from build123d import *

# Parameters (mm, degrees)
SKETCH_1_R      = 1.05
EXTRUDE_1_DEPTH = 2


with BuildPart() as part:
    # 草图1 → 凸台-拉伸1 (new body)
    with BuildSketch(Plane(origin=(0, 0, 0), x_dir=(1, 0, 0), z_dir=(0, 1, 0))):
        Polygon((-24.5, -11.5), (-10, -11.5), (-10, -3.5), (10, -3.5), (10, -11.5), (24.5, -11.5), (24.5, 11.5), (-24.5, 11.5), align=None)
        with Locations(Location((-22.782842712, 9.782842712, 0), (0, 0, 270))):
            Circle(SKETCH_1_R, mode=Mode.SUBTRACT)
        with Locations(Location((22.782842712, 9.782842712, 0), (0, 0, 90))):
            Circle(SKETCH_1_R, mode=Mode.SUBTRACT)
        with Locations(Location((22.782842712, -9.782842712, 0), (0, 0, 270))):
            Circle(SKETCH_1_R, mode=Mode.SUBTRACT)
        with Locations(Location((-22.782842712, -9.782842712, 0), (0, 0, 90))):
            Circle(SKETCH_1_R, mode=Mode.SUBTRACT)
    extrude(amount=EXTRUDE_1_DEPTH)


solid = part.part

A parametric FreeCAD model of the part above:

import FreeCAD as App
import Part
import Sketcher

V = App.Vector

doc = App.newDocument("Part")
body = doc.addObject("PartDesign::Body", "Body")

sketch1 = body.newObject("Sketcher::SketchObject", "Sketch")
sketch1.AttachmentSupport = (doc.getObject("XZ_Plane"), [""])
sketch1.MapMode = "FlatFace"
sketch1.addGeometry(Part.LineSegment(V(-24.5, 11.5, 0), V(-10, 11.5, 0)), False)
sketch1.addGeometry(Part.LineSegment(V(-10, 11.5, 0), V(-10, 3.5, 0)), False)
sketch1.addGeometry(Part.LineSegment(V(-10, 3.5, 0), V(10, 3.5, 0)), False)
sketch1.addGeometry(Part.LineSegment(V(10, 3.5, 0), V(10, 11.5, 0)), False)
sketch1.addGeometry(Part.LineSegment(V(10, 11.5, 0), V(24.5, 11.5, 0)), False)
sketch1.addGeometry(Part.LineSegment(V(24.5, 11.5, 0), V(24.5, -11.5, 0)), False)
sketch1.addGeometry(Part.LineSegment(V(24.5, -11.5, 0), V(-24.5, -11.5, 0)), False)
sketch1.addGeometry(Part.LineSegment(V(-24.5, -11.5, 0), V(-24.5, 11.5, 0)), False)
sketch1.addGeometry(Part.Circle(V(-22.8, 9.8, 0), V(0, 0, 1), 1.1), False)
sketch1.addGeometry(Part.Circle(V(22.8, 9.8, 0), V(0, 0, 1), 1.1), False)
sketch1.addGeometry(Part.Circle(V(-22.8, -9.8, 0), V(0, 0, 1), 1.1), False)
sketch1.addGeometry(Part.Circle(V(22.8, -9.8, 0), V(0, 0, 1), 1.1), False)
sketch1.addConstraint(Sketcher.Constraint("Coincident", 0, 2, 1, 1))
sketch1.addConstraint(Sketcher.Constraint("Coincident", 1, 2, 2, 1))
sketch1.addConstraint(Sketcher.Constraint("Coincident", 2, 2, 3, 1))
sketch1.addConstraint(Sketcher.Constraint("Coincident", 3, 2, 4, 1))
sketch1.addConstraint(Sketcher.Constraint("Coincident", 4, 2, 5, 1))
sketch1.addConstraint(Sketcher.Constraint("Coincident", 5, 2, 6, 1))
sketch1.addConstraint(Sketcher.Constraint("Coincident", 6, 2, 7, 1))
sketch1.addConstraint(Sketcher.Constraint("Coincident", 7, 2, 0, 1))
sketch1.addConstraint(Sketcher.Constraint("Horizontal", 0))
sketch1.addConstraint(Sketcher.Constraint("Vertical", 1))
sketch1.addConstraint(Sketcher.Constraint("Horizontal", 2))
sketch1.addConstraint(Sketcher.Constraint("Vertical", 3))
sketch1.addConstraint(Sketcher.Constraint("Horizontal", 4))
sketch1.addConstraint(Sketcher.Constraint("Vertical", 5))
sketch1.addConstraint(Sketcher.Constraint("Horizontal", 6))
sketch1.addConstraint(Sketcher.Constraint("Vertical", 7))
sketch1.addConstraint(Sketcher.Constraint("Equal", 8, 9))
sketch1.addConstraint(Sketcher.Constraint("Equal", 9, 10))
sketch1.addConstraint(Sketcher.Constraint("Equal", 10, 11))
sketch1.addConstraint(Sketcher.Constraint("Symmetric", 9, 3, 10, 3, -1, 1))
sketch1.addConstraint(Sketcher.Constraint("Symmetric", 8, 3, 11, 3, -1, 1))
sketch1.addConstraint(Sketcher.Constraint("Symmetric", 4, 2, 6, 2, -1, 1))
sketch1.addConstraint(Sketcher.Constraint("Symmetric", 8, 3, 9, 3, -2))
sketch1.addConstraint(Sketcher.Constraint("Symmetric", 0, 2, 3, 2, -2))
sketch1.addConstraint(Sketcher.Constraint("Diameter", 8, 2.1))
sketch1.addConstraint(Sketcher.Constraint("DistanceX", 2, 1, 2, 2, 20.0))
sketch1.addConstraint(Sketcher.Constraint("DistanceX", 6, 2, 6, 1, 49.0))
sketch1.addConstraint(Sketcher.Constraint("DistanceY", 1, 2, 1, 1, 8.0))
sketch1.addConstraint(Sketcher.Constraint("DistanceY", 5, 2, 5, 1, 23.0))
sketch1.addConstraint(Sketcher.Constraint("DistanceX", 8, 3, -1, 1, 22.782843))
sketch1.addConstraint(Sketcher.Constraint("DistanceY", -1, 1, 8, 3, 9.782843))
pad1 = body.newObject("PartDesign::Pad", "Pad")
pad1.Profile = sketch1
pad1.Length = 2
pad1.Reversed = True

doc.recompute()
